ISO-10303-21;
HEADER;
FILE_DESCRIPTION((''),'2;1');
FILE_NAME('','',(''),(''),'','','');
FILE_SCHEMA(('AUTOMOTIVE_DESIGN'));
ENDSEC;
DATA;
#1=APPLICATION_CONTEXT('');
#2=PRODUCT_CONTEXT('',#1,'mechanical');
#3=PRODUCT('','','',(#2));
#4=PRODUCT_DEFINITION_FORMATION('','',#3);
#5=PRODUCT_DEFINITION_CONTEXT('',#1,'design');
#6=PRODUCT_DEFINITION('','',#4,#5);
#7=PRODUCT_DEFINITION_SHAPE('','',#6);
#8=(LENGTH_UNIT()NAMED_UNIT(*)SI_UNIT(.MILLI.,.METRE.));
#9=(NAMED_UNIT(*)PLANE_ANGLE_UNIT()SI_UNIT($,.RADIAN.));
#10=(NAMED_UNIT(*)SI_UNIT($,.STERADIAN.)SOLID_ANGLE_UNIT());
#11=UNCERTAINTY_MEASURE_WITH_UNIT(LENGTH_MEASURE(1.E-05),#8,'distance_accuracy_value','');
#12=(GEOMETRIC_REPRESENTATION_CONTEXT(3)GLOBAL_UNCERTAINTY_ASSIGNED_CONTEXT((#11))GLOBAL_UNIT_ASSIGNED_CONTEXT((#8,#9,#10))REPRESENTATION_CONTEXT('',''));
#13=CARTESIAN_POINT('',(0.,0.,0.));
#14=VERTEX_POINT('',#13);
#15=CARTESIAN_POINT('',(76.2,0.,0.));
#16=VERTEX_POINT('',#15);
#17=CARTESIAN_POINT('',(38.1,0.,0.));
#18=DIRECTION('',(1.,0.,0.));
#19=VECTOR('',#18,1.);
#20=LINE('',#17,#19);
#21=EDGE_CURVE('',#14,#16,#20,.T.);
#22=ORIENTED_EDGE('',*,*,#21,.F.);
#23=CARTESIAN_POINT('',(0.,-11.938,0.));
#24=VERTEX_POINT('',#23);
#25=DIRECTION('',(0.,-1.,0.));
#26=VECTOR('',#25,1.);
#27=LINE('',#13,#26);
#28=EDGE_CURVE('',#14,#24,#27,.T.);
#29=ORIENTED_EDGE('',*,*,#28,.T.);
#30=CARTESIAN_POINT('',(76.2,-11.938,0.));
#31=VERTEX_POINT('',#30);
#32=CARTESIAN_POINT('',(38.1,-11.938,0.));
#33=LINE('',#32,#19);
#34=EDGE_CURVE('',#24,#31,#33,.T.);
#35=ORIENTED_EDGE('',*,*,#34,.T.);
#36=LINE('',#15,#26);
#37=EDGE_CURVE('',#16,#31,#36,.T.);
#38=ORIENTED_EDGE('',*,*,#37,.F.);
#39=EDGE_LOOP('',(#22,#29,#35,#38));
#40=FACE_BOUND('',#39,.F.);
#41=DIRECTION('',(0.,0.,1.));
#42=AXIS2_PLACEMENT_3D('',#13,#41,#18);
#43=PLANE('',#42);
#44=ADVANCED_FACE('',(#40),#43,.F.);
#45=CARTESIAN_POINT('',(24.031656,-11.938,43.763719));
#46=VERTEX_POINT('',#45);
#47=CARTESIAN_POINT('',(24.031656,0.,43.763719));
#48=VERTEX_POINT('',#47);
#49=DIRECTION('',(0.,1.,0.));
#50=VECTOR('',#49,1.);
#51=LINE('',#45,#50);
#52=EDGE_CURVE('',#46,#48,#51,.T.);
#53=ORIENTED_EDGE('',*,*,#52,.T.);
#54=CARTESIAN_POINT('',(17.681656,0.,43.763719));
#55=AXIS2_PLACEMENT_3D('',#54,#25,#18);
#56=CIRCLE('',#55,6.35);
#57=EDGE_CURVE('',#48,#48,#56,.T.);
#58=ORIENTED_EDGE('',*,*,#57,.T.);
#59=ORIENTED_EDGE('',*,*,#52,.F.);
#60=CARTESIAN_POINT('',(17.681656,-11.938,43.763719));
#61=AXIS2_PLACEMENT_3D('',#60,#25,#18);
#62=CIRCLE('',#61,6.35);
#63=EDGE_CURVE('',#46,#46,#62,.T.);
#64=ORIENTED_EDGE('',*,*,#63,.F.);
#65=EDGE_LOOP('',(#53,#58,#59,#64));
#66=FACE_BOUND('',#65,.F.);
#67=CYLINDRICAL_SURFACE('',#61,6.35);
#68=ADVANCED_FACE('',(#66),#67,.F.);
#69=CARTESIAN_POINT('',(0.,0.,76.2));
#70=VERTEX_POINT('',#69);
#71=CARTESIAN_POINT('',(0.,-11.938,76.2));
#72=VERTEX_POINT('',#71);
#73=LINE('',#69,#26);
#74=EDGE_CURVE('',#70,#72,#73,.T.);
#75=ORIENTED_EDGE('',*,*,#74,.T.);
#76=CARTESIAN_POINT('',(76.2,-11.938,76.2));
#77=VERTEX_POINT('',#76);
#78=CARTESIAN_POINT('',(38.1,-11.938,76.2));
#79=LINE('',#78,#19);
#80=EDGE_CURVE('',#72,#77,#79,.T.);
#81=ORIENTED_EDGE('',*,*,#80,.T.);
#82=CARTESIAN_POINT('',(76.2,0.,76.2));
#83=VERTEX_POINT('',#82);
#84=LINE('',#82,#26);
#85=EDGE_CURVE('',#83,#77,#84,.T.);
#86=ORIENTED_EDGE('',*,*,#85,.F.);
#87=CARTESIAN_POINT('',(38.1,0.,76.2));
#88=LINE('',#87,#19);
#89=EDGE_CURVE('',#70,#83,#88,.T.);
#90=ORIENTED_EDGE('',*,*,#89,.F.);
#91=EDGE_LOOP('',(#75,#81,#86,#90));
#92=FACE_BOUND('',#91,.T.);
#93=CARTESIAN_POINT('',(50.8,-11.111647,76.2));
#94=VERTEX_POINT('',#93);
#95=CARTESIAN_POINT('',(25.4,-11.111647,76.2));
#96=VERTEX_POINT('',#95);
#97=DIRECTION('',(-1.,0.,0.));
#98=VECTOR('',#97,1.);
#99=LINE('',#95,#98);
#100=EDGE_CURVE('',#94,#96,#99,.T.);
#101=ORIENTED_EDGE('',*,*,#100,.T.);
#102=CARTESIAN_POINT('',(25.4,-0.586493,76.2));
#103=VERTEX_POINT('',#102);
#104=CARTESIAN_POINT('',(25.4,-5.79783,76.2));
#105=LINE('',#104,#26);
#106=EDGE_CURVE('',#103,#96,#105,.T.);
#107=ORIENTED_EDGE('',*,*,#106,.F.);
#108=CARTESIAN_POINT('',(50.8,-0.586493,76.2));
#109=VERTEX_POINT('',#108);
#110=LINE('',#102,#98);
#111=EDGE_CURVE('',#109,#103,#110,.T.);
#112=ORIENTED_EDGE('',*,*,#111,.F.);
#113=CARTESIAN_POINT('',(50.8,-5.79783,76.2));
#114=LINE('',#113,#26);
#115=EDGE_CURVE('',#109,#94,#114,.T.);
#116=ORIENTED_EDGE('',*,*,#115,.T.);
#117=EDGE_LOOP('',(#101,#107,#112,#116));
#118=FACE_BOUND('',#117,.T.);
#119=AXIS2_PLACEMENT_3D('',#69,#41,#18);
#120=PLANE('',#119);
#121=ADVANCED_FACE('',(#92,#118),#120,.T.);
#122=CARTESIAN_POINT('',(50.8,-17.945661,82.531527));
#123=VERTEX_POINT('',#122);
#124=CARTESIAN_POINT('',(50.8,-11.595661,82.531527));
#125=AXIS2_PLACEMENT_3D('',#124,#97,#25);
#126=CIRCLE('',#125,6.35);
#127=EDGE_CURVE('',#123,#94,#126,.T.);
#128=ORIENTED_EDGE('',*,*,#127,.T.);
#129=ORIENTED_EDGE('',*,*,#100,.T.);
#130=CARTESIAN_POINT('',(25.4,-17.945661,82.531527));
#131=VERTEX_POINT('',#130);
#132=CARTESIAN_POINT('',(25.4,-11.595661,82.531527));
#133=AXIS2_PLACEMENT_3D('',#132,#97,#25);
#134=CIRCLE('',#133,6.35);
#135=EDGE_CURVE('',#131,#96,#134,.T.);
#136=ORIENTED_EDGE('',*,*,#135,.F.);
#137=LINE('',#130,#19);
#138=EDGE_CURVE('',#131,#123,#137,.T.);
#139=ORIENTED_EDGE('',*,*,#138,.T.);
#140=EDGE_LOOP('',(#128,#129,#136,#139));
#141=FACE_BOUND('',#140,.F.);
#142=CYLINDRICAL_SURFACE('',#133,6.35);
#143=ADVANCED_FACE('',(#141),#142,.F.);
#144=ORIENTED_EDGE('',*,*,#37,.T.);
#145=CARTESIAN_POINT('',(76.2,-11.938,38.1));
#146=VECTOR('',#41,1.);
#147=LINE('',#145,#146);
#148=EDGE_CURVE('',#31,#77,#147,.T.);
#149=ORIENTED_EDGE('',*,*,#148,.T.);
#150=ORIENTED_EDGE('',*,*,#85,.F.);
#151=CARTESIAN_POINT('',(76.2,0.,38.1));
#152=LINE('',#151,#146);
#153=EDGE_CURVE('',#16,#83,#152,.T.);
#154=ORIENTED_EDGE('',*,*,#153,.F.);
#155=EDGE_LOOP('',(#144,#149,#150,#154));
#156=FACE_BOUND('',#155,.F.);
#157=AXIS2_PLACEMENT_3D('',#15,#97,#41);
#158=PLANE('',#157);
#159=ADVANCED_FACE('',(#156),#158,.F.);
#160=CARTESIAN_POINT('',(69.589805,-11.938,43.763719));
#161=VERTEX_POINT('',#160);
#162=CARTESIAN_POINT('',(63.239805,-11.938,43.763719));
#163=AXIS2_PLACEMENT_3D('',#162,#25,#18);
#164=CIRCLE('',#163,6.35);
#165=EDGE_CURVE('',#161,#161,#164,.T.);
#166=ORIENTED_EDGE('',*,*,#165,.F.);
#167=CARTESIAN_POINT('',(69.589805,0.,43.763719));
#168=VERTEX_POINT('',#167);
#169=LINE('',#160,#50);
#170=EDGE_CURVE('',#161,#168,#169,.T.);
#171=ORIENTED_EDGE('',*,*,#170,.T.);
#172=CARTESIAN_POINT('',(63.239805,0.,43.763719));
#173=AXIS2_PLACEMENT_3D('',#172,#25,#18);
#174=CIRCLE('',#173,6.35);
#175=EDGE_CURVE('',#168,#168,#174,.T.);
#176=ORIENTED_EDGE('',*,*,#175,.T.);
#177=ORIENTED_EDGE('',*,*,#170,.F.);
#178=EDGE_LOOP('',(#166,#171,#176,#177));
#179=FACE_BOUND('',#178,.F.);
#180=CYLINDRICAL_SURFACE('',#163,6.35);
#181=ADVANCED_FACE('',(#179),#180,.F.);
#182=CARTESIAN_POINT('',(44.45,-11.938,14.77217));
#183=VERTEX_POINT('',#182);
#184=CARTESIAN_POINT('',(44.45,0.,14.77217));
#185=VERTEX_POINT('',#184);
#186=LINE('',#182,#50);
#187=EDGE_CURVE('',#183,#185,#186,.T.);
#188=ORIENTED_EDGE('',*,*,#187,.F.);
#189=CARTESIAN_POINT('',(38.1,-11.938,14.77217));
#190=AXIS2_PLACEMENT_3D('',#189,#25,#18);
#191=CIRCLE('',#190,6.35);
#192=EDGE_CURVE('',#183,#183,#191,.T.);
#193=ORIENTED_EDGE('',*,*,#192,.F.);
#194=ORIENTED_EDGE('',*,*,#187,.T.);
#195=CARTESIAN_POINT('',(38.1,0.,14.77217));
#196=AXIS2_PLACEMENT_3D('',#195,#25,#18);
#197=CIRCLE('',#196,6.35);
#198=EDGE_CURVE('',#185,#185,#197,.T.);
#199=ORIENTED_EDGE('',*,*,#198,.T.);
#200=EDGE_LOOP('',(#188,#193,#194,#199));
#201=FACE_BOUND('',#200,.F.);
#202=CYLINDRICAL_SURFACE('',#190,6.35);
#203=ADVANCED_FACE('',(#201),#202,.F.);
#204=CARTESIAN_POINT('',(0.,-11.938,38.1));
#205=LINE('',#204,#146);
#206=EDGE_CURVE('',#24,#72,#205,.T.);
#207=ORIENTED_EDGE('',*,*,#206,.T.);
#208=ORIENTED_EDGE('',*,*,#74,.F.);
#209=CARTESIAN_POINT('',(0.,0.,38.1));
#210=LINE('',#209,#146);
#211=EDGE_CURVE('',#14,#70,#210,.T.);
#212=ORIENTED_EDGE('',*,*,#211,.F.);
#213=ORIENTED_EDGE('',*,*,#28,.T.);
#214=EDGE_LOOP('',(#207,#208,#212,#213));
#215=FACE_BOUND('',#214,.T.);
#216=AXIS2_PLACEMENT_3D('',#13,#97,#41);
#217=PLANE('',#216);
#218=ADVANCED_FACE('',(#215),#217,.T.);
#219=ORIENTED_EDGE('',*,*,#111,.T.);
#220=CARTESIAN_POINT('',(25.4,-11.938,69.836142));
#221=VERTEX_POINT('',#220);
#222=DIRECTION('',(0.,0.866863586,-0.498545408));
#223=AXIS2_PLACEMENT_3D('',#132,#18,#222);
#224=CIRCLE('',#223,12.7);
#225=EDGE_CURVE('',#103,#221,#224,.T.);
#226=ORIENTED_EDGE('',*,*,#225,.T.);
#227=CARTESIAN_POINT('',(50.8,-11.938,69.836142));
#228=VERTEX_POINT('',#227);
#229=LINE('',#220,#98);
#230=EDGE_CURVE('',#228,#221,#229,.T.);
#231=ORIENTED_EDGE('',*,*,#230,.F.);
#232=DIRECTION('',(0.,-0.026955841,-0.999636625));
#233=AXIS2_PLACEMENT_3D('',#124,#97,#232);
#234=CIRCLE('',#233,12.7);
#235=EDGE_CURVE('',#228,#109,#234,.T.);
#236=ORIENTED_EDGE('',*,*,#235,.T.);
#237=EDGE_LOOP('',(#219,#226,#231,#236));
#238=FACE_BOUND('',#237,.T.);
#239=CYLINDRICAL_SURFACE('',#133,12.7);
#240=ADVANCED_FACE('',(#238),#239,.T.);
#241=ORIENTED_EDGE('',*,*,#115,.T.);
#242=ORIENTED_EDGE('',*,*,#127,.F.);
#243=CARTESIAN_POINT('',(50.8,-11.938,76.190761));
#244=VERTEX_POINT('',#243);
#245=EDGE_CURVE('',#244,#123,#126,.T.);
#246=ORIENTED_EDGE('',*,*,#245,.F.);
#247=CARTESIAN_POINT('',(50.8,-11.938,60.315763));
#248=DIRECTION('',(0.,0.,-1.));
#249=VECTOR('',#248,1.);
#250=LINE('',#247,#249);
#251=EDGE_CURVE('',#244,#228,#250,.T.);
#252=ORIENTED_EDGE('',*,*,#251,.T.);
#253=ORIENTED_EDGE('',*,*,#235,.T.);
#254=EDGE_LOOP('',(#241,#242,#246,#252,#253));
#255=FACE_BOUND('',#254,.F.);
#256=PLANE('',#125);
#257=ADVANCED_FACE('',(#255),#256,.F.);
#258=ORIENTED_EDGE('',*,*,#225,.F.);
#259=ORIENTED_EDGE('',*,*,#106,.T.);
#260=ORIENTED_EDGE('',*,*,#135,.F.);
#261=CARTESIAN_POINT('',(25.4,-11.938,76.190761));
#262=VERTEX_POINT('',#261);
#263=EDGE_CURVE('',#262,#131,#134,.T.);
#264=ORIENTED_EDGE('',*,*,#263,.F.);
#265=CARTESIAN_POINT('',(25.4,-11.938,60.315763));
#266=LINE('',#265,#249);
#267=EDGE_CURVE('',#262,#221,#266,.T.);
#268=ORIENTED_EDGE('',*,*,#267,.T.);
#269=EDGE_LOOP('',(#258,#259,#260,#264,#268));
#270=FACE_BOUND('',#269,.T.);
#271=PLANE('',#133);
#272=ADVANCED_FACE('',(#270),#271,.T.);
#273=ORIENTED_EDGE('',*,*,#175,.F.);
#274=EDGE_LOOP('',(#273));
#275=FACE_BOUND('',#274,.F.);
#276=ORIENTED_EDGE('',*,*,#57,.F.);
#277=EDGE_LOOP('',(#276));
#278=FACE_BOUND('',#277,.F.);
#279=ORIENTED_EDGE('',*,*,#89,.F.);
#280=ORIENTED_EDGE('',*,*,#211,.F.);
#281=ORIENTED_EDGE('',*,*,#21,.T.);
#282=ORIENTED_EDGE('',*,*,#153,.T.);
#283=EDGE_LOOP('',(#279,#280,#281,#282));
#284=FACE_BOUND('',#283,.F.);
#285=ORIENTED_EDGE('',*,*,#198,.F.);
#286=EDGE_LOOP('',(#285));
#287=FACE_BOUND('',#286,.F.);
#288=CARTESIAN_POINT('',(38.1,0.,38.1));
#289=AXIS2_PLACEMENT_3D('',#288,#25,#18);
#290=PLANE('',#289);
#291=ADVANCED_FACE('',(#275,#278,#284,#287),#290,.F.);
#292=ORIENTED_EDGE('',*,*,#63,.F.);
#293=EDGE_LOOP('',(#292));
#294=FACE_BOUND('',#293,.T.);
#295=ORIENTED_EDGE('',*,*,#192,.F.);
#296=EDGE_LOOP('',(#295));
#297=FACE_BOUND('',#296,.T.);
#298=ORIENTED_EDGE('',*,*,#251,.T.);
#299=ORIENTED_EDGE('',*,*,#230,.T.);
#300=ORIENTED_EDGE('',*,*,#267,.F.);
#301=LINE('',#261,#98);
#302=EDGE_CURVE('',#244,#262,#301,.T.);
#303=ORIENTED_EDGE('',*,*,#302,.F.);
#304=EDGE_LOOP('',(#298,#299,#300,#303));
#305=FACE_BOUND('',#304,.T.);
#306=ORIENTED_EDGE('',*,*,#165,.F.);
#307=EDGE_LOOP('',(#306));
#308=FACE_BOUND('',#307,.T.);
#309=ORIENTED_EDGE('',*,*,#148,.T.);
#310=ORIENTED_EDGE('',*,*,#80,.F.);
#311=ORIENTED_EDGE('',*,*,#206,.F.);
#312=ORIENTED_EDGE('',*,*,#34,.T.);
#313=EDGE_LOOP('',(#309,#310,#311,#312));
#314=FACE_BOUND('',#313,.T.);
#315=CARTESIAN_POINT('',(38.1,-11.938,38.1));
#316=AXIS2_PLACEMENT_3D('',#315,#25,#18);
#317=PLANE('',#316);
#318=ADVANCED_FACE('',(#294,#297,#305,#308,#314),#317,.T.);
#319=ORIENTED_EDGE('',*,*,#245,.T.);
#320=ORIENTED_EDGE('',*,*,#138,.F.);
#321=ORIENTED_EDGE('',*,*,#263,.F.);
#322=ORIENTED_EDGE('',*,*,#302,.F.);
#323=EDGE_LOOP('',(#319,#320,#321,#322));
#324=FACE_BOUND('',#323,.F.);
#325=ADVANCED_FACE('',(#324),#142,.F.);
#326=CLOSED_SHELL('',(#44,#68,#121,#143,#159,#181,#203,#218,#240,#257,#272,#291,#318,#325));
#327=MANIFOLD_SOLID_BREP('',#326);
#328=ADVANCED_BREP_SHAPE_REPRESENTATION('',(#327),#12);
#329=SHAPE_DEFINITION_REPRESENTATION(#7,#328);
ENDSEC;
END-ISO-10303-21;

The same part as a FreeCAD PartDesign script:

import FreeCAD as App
import Part
import Sketcher

V = App.Vector
Q = App.Units.Quantity


def add_polygon(sketch, points):
    """Adds a closed chain of lines whose ends are joined by coincident constraints."""
    first, n = sketch.GeometryCount, len(points)
    for a, b in zip(points, points[1:] + points[:1]):
        sketch.addGeometry(Part.LineSegment(App.Vector(*a, 0), App.Vector(*b, 0)), False)
    for i in range(n):
        sketch.addConstraint(Sketcher.Constraint("Coincident", first + i, 2, first + (i + 1) % n, 1))

doc = App.newDocument("Part")
body = doc.addObject("PartDesign::Body", "Body")

sketch1 = body.newObject("Sketcher::SketchObject", "Sketch")
sketch1.AttachmentSupport = (doc.getObject("XZ_Plane"), [""])
sketch1.MapMode = "FlatFace"
add_polygon(sketch1, [(0, 76), (0, 0), (76, 0), (76, 76)])
sketch1.addConstraint([
    Sketcher.Constraint("Vertical", 0),
    Sketcher.Constraint("Horizontal", 1),
    Sketcher.Constraint("Vertical", 2),
    Sketcher.Constraint("Horizontal", 3),
    Sketcher.Constraint("Coincident", 0, 2, -1, 1),
    Sketcher.Constraint("Equal", 3, 0),
    Sketcher.Constraint("DistanceX", 1, 1, 1, 2, Q("3 in")),
])
pad1 = body.newObject("PartDesign::Pad", "Pad")
pad1.Profile = sketch1
pad1.Length = Q("0.47 in")

sketch2 = body.newObject("Sketcher::SketchObject", "Sketch001")
sketch2.AttachmentSupport = (doc.getObject("YZ_Plane"), [""])
sketch2.MapMode = "FlatFace"
sketch2.AttachmentOffset = App.Placement(V(0, 0, 1 * 25.4), App.Rotation())
sketch2.addGeometry([
    Part.Circle(V(-12, 83, 0), V(0, 0, 1), 13),
    Part.Circle(V(-12, 83, 0), V(0, 0, 1), 6),
], False)
sketch2.addConstraint([
    Sketcher.Constraint("Coincident", 1, 3, 0, 3),
    Sketcher.Constraint("Diameter", 0, Q("1 in")),
    Sketcher.Constraint("Diameter", 1, Q("0.5 in")),
    Sketcher.Constraint("DistanceX", 0, 3, -1, 1, 11.595661),
    Sketcher.Constraint("DistanceY", -1, 1, 0, 3, 82.531527),
])
pad2 = body.newObject("PartDesign::Pad", "Pad001")
pad2.Profile = sketch2
pad2.Length = Q("1 in")

sketch3 = body.newObject("Sketcher::SketchObject", "Sketch002")
sketch3.AttachmentSupport = (doc.getObject("XZ_Plane"), [""])
sketch3.MapMode = "FlatFace"
sketch3.AttachmentOffset = App.Placement(V(0, 0, 0.47 * 25.4), App.Rotation())
sketch3.addGeometry([
    Part.Circle(V(38, 15, 0), V(0, 0, 1), 6),
    Part.Circle(V(18, 44, 0), V(0, 0, 1), 6),
    Part.Circle(V(63, 44, 0), V(0, 0, 1), 6),
], False)
sketch3.addConstraint([
    Sketcher.Constraint("Equal", 0, 1),
    Sketcher.Constraint("Equal", 1, 2),
    Sketcher.Constraint("Horizontal", 1, 3, 2, 3),
    Sketcher.Constraint("Diameter", 0, Q("0.5 in")),
    Sketcher.Constraint("DistanceX", -1, 1, 0, 3, Q("1.5 in")),
    Sketcher.Constraint("DistanceY", -1, 1, 0, 3, 14.77217),
    Sketcher.Constraint("DistanceY", -1, 1, 1, 3, 43.763719),
    Sketcher.Constraint("DistanceX", 1, 3, 2, 3, 45.558149),
    Sketcher.Constraint("DistanceX", -1, 1, 1, 3, 17.681656),
])
pocket1 = body.newObject("PartDesign::Pocket", "Pocket")
pocket1.Profile = sketch3
pocket1.Length = Q("1 in")

doc.recompute()
